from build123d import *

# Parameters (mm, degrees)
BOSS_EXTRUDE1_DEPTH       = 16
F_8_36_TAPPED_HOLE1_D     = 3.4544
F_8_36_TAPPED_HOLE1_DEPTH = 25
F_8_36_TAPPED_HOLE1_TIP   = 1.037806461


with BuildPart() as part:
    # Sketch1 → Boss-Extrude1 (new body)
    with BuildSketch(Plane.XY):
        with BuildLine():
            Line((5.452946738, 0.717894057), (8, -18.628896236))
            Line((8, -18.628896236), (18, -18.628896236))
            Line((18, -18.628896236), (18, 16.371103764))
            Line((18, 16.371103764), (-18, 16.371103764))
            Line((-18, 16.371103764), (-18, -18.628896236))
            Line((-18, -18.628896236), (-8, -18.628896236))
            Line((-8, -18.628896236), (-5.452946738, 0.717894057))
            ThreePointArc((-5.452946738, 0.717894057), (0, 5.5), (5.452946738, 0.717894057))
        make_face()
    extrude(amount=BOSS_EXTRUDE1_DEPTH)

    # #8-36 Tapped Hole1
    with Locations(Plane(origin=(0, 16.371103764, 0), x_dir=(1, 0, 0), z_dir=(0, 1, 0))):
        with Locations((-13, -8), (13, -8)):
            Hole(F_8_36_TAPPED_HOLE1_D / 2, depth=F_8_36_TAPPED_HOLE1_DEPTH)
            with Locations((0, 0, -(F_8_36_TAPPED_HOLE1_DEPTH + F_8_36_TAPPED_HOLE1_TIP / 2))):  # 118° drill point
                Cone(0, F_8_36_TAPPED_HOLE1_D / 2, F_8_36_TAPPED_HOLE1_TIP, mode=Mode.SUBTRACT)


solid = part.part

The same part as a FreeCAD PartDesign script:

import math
import FreeCAD as App
import Part
import Sketcher
Q = App.Units.Quantity

doc = App.newDocument("Part")
body = doc.addObject("PartDesign::Body", "Body")

# Sketch on XY plane
sketch1 = body.newObject("Sketcher::SketchObject", "Sketch")
sketch1.AttachmentSupport = (doc.getObject("XY_Plane"), [""])
sketch1.MapMode = "FlatFace"
sketch1.addGeometry([
    Part.LineSegment(App.Vector(5, 1, 0), App.Vector(8, -19, 0)),  # 0
    Part.LineSegment(App.Vector(8, -19, 0), App.Vector(18, -19, 0)),  # 1
    Part.LineSegment(App.Vector(18, -19, 0), App.Vector(18, 16, 0)),  # 2
    Part.LineSegment(App.Vector(18, 16, 0), App.Vector(-18, 16, 0)),  # 3
    Part.LineSegment(App.Vector(-18, 16, 0), App.Vector(-18, -19, 0)),  # 4
    Part.LineSegment(App.Vector(-18, -19, 0), App.Vector(-8, -19, 0)),  # 5
    Part.LineSegment(App.Vector(-8, -19, 0), App.Vector(-5, 1, 0)),  # 6
    Part.ArcOfCircle(Part.Circle(App.Vector(0, 0, 0), App.Vector(0, 0, 1), 6), math.radians(7), math.radians(173)),  # 7
], False)
sketch1.addConstraint([
    Sketcher.Constraint("Coincident", 0, 2, 1, 1),
    Sketcher.Constraint("Coincident", 1, 2, 2, 1),
    Sketcher.Constraint("Coincident", 2, 2, 3, 1),
    Sketcher.Constraint("Coincident", 3, 2, 4, 1),
    Sketcher.Constraint("Coincident", 4, 2, 5, 1),
    Sketcher.Constraint("Coincident", 5, 2, 6, 1),
    Sketcher.Constraint("Tangent", 6, 2, 7, 2),
    Sketcher.Constraint("Tangent", 7, 1, 0, 1),
    Sketcher.Constraint("Horizontal", 1),
    Sketcher.Constraint("Vertical", 2),
    Sketcher.Constraint("Horizontal", 3),
    Sketcher.Constraint("Vertical", 4),
    Sketcher.Constraint("Horizontal", 5),
    Sketcher.Constraint("Coincident", 7, 3, -1, 1),
    Sketcher.Constraint("Symmetric", 1, 2, 4, 2, -2),
    Sketcher.Constraint("Horizontal", 6, 2, 7, 1),
    Sketcher.Constraint("Radius", 7, Q("5.5 mm")),
    Sketcher.Constraint("DistanceX", 1, 1, 1, 2, Q("10 mm")),
    Sketcher.Constraint("DistanceX", 3, 2, 3, 1, Q("36 mm")),
    Sketcher.Constraint("DistanceY", 2, 1, 2, 2, Q("35 mm")),
    Sketcher.Constraint("Angle", 0, Q("-82.5 deg")),
])
pad1 = body.newObject("PartDesign::Pad", "Pad")
pad1.Profile = sketch1
pad1.Length = 16

# Sketch on XZ plane
sketch2 = body.newObject("Sketcher::SketchObject", "Sketch001")
sketch2.AttachmentSupport = (doc.getObject("XZ_Plane"), [""])
sketch2.MapMode = "FlatFace"
sketch2.AttachmentOffset = App.Placement(App.Vector(0, 0, -16.371104), App.Rotation())
sketch2.addGeometry([
    Part.Circle(App.Vector(-13, 8, 0), App.Vector(0, 0, 1), 1.7),
    Part.Circle(App.Vector(13, 8, 0), App.Vector(0, 0, 1), 1.7),
], False)
sketch2.addConstraint([
    Sketcher.Constraint("Equal", 0, 1),
    Sketcher.Constraint("Symmetric", 0, 3, 1, 3, -2),
    Sketcher.Constraint("DistanceX", 0, 3, -1, 1, Q("13 mm")),
    Sketcher.Constraint("DistanceY", -1, 1, 0, 3, Q("8 mm")),
    Sketcher.Constraint("Diameter", 0, Q("3.4544 mm")),
])
doc.recompute()
hole = body.newObject("PartDesign::Hole", "Hole")
hole.Profile = sketch2
hole.ThreadType = "None"
hole.Diameter = 3.4544
hole.DepthType = "Dimension"
hole.Depth = 25
hole.DrillPoint = "Angled"
hole.DrillPointAngle = 118
hole.Reversed = True

doc.recompute()
